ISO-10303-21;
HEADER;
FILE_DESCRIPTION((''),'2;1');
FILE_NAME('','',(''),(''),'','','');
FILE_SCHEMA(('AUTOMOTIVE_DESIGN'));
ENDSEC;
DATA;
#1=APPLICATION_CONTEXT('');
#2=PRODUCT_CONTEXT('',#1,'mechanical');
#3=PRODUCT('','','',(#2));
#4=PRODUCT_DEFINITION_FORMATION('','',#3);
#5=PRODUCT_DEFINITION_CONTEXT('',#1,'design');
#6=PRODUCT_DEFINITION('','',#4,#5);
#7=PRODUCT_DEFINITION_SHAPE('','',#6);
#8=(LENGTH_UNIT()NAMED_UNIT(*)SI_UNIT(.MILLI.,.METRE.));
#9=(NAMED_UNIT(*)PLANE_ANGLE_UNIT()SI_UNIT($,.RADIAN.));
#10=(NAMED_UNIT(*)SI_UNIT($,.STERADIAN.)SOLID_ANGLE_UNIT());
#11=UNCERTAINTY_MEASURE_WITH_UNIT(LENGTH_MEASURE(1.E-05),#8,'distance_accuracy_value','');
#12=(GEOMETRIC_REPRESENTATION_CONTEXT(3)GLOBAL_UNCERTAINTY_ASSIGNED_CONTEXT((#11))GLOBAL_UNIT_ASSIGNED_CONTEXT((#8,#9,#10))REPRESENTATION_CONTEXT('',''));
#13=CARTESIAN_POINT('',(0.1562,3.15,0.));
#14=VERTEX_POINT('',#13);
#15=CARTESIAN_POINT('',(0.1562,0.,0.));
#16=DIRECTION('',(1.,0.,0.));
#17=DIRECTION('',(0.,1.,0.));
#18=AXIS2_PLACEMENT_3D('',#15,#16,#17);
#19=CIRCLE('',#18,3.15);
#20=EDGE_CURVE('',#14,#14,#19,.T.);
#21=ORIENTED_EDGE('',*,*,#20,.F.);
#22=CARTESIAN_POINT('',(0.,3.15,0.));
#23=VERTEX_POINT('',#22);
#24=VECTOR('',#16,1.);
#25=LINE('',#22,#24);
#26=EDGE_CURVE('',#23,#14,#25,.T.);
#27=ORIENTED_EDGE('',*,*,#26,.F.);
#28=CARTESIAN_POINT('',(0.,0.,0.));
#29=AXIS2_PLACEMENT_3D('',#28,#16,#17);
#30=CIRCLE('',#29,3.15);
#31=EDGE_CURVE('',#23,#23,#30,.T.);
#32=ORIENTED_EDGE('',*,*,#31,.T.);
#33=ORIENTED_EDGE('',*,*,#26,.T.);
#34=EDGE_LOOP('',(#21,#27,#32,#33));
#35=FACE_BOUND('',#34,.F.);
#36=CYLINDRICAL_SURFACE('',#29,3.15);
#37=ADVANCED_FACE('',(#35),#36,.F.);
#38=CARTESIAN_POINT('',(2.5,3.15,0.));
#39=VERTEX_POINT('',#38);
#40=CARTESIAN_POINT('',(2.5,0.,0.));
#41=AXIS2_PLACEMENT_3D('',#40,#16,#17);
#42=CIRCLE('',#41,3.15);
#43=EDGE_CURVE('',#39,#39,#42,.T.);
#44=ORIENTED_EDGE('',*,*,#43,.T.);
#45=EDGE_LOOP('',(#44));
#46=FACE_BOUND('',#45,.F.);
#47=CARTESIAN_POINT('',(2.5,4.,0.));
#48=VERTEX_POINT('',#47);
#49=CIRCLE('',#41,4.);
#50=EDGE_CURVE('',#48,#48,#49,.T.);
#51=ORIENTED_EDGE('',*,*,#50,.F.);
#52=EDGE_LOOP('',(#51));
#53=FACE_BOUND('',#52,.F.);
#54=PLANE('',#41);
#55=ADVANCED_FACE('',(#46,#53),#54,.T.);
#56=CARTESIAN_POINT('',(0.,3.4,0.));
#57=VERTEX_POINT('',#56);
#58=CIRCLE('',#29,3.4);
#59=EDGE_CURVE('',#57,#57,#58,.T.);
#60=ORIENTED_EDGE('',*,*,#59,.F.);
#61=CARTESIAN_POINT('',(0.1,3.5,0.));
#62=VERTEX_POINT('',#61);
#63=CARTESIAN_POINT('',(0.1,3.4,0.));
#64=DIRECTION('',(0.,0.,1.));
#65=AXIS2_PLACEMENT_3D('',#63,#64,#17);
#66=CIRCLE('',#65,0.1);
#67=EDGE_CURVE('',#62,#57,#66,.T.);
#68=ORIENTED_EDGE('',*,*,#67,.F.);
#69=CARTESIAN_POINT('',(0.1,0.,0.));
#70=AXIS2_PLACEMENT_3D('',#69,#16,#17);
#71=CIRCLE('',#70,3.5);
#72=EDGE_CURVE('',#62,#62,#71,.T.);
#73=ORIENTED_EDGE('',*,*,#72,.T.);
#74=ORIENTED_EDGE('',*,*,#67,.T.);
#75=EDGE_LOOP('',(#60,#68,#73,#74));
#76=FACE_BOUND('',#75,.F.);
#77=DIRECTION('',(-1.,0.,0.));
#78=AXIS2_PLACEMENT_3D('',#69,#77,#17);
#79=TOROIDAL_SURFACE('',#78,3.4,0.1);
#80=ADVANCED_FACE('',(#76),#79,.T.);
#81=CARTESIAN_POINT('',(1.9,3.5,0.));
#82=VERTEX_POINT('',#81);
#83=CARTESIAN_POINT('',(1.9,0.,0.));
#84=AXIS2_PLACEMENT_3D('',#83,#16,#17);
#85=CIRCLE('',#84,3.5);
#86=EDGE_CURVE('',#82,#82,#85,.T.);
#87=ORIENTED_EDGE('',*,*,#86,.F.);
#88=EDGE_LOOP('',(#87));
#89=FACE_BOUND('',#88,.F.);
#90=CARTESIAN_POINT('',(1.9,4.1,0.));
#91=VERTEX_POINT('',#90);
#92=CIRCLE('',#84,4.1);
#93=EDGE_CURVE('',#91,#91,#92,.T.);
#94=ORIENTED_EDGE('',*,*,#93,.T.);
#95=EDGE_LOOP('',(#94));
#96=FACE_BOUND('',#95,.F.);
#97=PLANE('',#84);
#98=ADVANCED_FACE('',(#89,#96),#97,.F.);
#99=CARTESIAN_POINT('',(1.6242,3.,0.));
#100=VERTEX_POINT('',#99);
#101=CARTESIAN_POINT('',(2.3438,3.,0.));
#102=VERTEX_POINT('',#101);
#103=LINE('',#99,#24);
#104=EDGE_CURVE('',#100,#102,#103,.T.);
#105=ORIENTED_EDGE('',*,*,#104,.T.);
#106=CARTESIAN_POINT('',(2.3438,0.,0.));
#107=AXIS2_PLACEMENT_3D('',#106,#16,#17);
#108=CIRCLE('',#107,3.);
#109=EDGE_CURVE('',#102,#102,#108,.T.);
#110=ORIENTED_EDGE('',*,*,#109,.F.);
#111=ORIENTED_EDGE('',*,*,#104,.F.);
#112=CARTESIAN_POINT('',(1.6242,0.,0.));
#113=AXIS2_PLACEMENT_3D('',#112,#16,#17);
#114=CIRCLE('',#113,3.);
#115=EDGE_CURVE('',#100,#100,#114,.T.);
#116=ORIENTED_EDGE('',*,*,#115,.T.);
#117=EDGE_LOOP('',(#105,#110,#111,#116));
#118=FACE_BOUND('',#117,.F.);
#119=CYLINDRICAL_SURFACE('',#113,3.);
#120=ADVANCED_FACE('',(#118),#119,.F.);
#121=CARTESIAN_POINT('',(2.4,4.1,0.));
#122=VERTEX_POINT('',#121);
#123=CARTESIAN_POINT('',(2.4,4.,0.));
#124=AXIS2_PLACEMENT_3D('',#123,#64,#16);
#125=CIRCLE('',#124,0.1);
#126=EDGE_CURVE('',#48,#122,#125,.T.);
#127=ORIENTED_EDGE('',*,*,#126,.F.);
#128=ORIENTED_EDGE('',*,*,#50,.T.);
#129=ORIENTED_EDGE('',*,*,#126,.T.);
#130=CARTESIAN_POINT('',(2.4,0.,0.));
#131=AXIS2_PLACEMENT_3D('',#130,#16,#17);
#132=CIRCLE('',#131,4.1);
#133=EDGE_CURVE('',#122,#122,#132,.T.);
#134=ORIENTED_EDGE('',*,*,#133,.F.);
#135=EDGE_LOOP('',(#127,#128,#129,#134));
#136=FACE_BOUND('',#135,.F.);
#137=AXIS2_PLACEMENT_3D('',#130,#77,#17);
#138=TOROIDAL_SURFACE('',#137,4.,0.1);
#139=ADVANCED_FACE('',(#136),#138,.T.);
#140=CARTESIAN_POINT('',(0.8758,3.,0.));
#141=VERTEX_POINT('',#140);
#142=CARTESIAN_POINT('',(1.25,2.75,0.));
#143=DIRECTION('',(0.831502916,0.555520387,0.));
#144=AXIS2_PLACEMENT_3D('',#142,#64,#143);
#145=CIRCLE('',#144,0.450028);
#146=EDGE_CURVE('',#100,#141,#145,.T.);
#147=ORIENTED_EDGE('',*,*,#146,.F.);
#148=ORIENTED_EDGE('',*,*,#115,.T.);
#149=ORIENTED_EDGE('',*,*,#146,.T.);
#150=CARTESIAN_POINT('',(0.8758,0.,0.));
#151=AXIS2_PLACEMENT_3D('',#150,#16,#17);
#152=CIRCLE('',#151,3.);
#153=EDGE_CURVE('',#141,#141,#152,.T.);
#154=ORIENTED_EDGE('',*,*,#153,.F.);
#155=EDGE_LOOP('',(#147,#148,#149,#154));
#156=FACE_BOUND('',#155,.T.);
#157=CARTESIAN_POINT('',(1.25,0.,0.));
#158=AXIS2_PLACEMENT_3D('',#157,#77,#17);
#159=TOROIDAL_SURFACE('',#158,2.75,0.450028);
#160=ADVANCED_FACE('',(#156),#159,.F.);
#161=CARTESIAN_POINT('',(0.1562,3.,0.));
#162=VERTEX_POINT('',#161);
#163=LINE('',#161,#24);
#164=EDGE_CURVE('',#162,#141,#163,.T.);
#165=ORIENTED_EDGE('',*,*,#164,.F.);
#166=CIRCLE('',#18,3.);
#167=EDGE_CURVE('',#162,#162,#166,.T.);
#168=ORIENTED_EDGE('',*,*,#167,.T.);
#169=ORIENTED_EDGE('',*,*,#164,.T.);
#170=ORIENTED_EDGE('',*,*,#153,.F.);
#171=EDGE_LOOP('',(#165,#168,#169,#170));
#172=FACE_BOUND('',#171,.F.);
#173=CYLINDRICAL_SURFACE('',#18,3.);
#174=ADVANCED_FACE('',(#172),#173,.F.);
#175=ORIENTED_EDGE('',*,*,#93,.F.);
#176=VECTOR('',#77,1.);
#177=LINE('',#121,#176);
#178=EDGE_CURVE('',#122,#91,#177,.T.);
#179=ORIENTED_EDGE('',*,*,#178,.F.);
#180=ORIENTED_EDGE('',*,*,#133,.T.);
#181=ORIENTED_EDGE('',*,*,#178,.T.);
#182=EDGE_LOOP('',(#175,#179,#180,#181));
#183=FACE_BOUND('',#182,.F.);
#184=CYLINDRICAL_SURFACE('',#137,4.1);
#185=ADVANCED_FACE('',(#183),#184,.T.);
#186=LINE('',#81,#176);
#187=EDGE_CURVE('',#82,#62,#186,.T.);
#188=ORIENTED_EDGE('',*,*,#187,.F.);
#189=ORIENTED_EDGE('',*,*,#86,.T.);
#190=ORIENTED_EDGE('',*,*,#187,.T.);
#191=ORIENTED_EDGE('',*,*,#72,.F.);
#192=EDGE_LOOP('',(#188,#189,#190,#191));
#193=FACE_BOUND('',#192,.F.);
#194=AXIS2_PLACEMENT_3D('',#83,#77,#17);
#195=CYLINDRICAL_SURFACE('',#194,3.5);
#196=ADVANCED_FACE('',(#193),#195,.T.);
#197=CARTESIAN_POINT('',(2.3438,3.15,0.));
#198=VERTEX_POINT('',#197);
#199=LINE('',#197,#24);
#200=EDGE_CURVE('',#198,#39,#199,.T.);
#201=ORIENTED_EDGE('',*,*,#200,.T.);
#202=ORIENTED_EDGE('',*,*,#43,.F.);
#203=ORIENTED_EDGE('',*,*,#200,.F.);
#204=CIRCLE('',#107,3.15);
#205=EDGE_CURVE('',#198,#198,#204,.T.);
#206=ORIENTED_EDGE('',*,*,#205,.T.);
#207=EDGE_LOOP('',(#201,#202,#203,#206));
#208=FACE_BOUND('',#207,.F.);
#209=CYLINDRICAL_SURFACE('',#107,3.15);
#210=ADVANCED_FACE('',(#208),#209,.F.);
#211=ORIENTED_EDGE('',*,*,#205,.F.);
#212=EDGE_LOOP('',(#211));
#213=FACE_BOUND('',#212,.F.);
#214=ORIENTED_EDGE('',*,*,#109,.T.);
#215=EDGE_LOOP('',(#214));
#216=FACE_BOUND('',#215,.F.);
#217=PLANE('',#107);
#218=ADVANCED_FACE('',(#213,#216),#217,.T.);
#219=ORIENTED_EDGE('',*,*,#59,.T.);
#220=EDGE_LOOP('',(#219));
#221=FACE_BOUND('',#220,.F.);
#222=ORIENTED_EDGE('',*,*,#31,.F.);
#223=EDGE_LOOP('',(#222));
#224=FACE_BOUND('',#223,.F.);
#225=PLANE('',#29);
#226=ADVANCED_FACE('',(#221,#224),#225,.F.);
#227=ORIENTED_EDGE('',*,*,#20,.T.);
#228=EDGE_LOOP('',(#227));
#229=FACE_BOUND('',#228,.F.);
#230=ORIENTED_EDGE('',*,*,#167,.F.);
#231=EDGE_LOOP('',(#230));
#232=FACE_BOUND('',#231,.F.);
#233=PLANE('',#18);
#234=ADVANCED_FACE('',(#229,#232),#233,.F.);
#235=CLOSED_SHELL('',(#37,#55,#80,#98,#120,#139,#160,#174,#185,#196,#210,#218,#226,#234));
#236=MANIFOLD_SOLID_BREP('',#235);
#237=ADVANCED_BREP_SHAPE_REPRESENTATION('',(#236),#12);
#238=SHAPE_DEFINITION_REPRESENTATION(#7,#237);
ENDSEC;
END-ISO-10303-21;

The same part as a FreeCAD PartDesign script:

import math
import FreeCAD as App
import Part
import Sketcher

doc = App.newDocument("Part")
body = doc.addObject("PartDesign::Body", "Body")

# Sketch on XY plane
sketch1 = body.newObject("Sketcher::SketchObject", "Sketch")
sketch1.AttachmentSupport = (doc.getObject("XY_Plane"), [""])
sketch1.MapMode = "FlatFace"
sketch1.addGeometry(Part.LineSegment(App.Vector(0, 3.4, 0), App.Vector(0, 3.15, 0)), False)
sketch1.addGeometry(Part.LineSegment(App.Vector(0, 3.15, 0), App.Vector(0.16, 3.15, 0)), False)
sketch1.addGeometry(Part.LineSegment(App.Vector(0.16, 3.15, 0), App.Vector(0.16, 3, 0)), False)
sketch1.addGeometry(Part.LineSegment(App.Vector(0.16, 3, 0), App.Vector(0.88, 3, 0)), False)
sketch1.addGeometry(Part.ArcOfCircle(Part.Circle(App.Vector(1.25, 2.75, 0), App.Vector(0, 0, 1), 0.45), math.radians(34), math.radians(146)), False)
sketch1.addGeometry(Part.LineSegment(App.Vector(1.62, 3, 0), App.Vector(2.34, 3, 0)), False)
sketch1.addGeometry(Part.LineSegment(App.Vector(2.34, 3, 0), App.Vector(2.34, 3.15, 0)), False)
sketch1.addGeometry(Part.LineSegment(App.Vector(2.34, 3.15, 0), App.Vector(2.5, 3.15, 0)), False)
sketch1.addGeometry(Part.LineSegment(App.Vector(2.5, 3.15, 0), App.Vector(2.5, 4, 0)), False)
sketch1.addGeometry(Part.ArcOfCircle(Part.Circle(App.Vector(2.4, 4, 0), App.Vector(0, 0, 1), 0.1), math.radians(0), math.radians(90)), False)
sketch1.addGeometry(Part.LineSegment(App.Vector(2.4, 4.1, 0), App.Vector(1.9, 4.1, 0)), False)
sketch1.addGeometry(Part.LineSegment(App.Vector(1.9, 4.1, 0), App.Vector(1.9, 3.5, 0)), False)
sketch1.addGeometry(Part.LineSegment(App.Vector(1.9, 3.5, 0), App.Vector(0.1, 3.5, 0)), False)
sketch1.addGeometry(Part.ArcOfCircle(Part.Circle(App.Vector(0.1, 3.4, 0), App.Vector(0, 0, 1), 0.1), math.radians(90), math.radians(180)), False)
sketch1.addConstraint(Sketcher.Constraint("Coincident", 0, 2, 1, 1))
sketch1.addConstraint(Sketcher.Constraint("Coincident", 1, 2, 2, 1))
sketch1.addConstraint(Sketcher.Constraint("Coincident", 2, 2, 3, 1))
sketch1.addConstraint(Sketcher.Constraint("Coincident", 3, 2, 4, 2))
sketch1.addConstraint(Sketcher.Constraint("Coincident", 4, 1, 5, 1))
sketch1.addConstraint(Sketcher.Constraint("Coincident", 5, 2, 6, 1))
sketch1.addConstraint(Sketcher.Constraint("Coincident", 6, 2, 7, 1))
sketch1.addConstraint(Sketcher.Constraint("Coincident", 7, 2, 8, 1))
sketch1.addConstraint(Sketcher.Constraint("Tangent", 8, 2, 9, 1))
sketch1.addConstraint(Sketcher.Constraint("Tangent", 9, 2, 10, 1))
sketch1.addConstraint(Sketcher.Constraint("Coincident", 10, 2, 11, 1))
sketch1.addConstraint(Sketcher.Constraint("Coincident", 11, 2, 12, 1))
sketch1.addConstraint(Sketcher.Constraint("Tangent", 12, 2, 13, 1))
sketch1.addConstraint(Sketcher.Constraint("Tangent", 13, 2, 0, 1))
sketch1.addConstraint(Sketcher.Constraint("Vertical", 0))
sketch1.addConstraint(Sketcher.Constraint("Horizontal", 1))
sketch1.addConstraint(Sketcher.Constraint("Vertical", 2))
sketch1.addConstraint(Sketcher.Constraint("Horizontal", 3))
sketch1.addConstraint(Sketcher.Constraint("Horizontal", 5))
sketch1.addConstraint(Sketcher.Constraint("Vertical", 6))
sketch1.addConstraint(Sketcher.Constraint("Horizontal", 7))
sketch1.addConstraint(Sketcher.Constraint("Vertical", 8))
sketch1.addConstraint(Sketcher.Constraint("Horizontal", 10))
sketch1.addConstraint(Sketcher.Constraint("Vertical", 11))
sketch1.addConstraint(Sketcher.Constraint("Horizontal", 12))
sketch1.addConstraint(Sketcher.Constraint("Equal", 9, 13))
sketch1.addConstraint(Sketcher.Constraint("PointOnObject", 0, 2, -2))
sketch1.addConstraint(Sketcher.Constraint("Horizontal", 3, 2, 4, 1))
sketch1.addConstraint(Sketcher.Constraint("Horizontal", 1, 2, 6, 2))
sketch1.addConstraint(Sketcher.Constraint("Equal", 3, 5))
sketch1.addConstraint(Sketcher.Constraint("Equal", 1, 7))
sketch1.addConstraint(Sketcher.Constraint("Radius", 9, 0.1))
sketch1.addConstraint(Sketcher.Constraint("Radius", 4, 0.45))
sketch1.addConstraint(Sketcher.Constraint("DistanceX", 10, 2, 10, 1, 0.5))
sketch1.addConstraint(Sketcher.Constraint("DistanceX", 12, 2, 12, 1, 1.8))
sketch1.addConstraint(Sketcher.Constraint("DistanceY", 11, 2, 11, 1, 0.6))
sketch1.addConstraint(Sketcher.Constraint("DistanceY", -1, 1, 9, 3, 4.0))
sketch1.addConstraint(Sketcher.Constraint("DistanceY", -1, 1, 2, 2, 3.0))
sketch1.addConstraint(Sketcher.Constraint("DistanceY", 0, 2, 0, 1, 0.25))
sketch1.addConstraint(Sketcher.Constraint("DistanceY", 4, 3, 0, 2, 0.4))
sketch1.addConstraint(Sketcher.Constraint("DistanceX", 1, 1, 1, 2, 0.1562))
revolution = body.newObject("PartDesign::Revolution", "Revolution")
revolution.Profile = sketch1
revolution.ReferenceAxis = (sketch1, ["H_Axis"])
revolution.Angle = 360

doc.recompute()
